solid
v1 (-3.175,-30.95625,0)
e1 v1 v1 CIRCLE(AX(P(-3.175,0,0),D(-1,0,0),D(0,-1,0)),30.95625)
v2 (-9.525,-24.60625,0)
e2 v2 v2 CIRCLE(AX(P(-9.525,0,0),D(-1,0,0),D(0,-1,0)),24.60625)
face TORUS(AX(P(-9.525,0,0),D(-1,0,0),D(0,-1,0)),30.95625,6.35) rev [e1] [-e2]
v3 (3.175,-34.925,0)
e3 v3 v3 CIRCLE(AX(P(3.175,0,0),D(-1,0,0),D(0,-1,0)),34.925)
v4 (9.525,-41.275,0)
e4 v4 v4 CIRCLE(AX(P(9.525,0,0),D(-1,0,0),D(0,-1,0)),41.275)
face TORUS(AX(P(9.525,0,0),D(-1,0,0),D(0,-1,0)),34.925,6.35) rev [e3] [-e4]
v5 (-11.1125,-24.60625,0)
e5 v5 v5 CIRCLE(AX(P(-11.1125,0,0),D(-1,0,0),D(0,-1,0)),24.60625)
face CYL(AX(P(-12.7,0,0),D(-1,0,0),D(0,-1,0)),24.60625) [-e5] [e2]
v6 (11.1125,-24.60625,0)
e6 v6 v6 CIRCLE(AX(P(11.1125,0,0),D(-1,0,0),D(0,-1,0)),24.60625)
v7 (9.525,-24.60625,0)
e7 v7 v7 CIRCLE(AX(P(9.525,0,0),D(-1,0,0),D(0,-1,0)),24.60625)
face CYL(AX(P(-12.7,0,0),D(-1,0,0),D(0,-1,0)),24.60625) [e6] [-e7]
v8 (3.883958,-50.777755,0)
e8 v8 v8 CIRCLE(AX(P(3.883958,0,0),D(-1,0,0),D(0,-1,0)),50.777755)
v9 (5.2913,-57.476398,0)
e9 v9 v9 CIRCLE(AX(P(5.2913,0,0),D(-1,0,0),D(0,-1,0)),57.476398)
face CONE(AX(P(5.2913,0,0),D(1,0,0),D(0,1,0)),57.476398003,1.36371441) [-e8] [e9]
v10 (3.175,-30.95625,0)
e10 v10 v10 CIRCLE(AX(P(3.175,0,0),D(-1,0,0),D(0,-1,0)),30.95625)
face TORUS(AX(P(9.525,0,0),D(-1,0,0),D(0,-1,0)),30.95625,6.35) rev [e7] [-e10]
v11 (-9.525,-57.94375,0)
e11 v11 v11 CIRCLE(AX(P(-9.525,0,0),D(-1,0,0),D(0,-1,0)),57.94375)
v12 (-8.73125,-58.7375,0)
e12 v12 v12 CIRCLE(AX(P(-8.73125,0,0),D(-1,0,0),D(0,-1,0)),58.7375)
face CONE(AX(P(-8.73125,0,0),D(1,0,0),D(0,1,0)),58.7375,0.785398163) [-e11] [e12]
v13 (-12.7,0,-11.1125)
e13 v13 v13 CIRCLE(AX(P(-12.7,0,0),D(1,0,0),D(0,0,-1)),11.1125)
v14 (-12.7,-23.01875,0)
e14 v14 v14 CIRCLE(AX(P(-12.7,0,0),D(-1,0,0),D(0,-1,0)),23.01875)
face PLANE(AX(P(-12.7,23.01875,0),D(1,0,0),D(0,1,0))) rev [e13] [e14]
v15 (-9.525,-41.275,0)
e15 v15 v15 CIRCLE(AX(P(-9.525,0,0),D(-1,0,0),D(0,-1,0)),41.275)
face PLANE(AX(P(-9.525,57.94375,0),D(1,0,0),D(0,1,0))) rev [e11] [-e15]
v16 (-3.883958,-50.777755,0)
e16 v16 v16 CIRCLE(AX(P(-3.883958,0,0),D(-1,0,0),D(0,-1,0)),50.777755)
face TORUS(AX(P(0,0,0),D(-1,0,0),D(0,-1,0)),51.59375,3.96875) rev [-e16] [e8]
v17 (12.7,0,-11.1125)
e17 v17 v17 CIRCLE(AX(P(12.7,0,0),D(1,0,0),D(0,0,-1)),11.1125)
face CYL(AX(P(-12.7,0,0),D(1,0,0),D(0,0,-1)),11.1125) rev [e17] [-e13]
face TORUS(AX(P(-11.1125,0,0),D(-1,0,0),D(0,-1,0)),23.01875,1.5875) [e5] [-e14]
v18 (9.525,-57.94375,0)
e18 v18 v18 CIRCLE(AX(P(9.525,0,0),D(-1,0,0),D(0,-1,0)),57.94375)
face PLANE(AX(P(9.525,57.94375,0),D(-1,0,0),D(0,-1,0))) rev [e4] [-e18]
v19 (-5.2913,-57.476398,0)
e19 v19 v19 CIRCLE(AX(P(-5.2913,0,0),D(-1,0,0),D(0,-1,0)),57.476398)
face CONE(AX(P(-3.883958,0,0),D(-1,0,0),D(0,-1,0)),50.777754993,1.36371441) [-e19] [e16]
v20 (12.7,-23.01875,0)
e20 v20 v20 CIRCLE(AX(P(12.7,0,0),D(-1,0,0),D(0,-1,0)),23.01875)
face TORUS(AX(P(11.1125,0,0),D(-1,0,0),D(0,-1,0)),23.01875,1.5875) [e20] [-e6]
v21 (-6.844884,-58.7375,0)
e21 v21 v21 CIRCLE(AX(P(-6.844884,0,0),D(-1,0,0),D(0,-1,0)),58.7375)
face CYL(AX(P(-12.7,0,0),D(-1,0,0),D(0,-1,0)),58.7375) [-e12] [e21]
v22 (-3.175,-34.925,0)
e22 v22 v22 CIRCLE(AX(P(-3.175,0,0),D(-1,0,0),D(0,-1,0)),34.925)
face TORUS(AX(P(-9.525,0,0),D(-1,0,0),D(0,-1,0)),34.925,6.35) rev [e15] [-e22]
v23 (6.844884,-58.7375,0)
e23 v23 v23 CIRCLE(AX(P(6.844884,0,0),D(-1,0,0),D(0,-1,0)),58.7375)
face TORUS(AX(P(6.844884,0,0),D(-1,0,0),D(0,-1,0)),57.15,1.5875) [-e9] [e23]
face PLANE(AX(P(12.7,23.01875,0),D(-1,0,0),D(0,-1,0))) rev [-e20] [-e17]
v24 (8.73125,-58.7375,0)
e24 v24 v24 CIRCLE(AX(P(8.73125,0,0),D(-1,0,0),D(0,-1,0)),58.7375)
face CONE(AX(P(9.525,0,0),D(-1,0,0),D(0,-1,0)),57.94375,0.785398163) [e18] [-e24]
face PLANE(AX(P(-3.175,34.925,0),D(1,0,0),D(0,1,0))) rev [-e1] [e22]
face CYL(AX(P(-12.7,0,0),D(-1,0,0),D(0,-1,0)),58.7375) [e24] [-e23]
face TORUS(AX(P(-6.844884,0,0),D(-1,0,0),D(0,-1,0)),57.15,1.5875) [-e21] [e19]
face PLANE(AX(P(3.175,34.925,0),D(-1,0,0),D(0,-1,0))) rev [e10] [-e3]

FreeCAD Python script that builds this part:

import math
import FreeCAD as App
import Part
import Sketcher

V = App.Vector
Q = App.Units.Quantity

doc = App.newDocument("Part")
body = doc.addObject("PartDesign::Body", "Body")

# Sketch on XY plane
sketch1 = body.newObject("Sketcher::SketchObject", "Sketch")
sketch1.AttachmentSupport = (doc.getObject("XY_Plane"), [""])
sketch1.MapMode = "FlatFace"
sketch1.addGeometry([
    Part.LineSegment(V(-12.7, 0, 0), V(12.7, 0, 0)),  # 0
    Part.LineSegment(V(12.7, 0, 0), V(12.7, 23, 0)),  # 1
    Part.ArcOfCircle(Part.Circle(V(11.1, 23, 0), V(0, 0, 1), 1.6), math.radians(0), math.radians(90)),  # 2
    Part.LineSegment(V(11.1, 24.6, 0), V(9.5, 24.6, 0)),  # 3
    Part.ArcOfCircle(Part.Circle(V(9.5, 31, 0), V(0, 0, 1), 6.3), math.radians(180), math.radians(270)),  # 4
    Part.LineSegment(V(3.2, 31, 0), V(3.2, 34.9, 0)),  # 5
    Part.ArcOfCircle(Part.Circle(V(9.5, 34.9, 0), V(0, 0, 1), 6.3), math.radians(90), math.radians(180)),  # 6
    Part.LineSegment(V(9.5, 41.3, 0), V(9.5, 57.9, 0)),  # 7
    Part.LineSegment(V(9.5, 57.9, 0), V(8.7, 58.7, 0)),  # 8
    Part.LineSegment(V(8.7, 58.7, 0), V(6.8, 58.7, 0)),  # 9
    Part.ArcOfCircle(Part.Circle(V(6.8, 57.2, 0), V(0, 0, 1), 1.6), math.radians(90), math.radians(168)),  # 10
    Part.LineSegment(V(5.3, 57.5, 0), V(3.9, 50.8, 0)),  # 11
    Part.ArcOfCircle(Part.Circle(V(0, 51.6, 0), V(0, 0, 1), 4), math.radians(-168), math.radians(-12)),  # 12
    Part.LineSegment(V(-3.9, 50.8, 0), V(-5.3, 57.5, 0)),  # 13
    Part.ArcOfCircle(Part.Circle(V(-6.8, 57.2, 0), V(0, 0, 1), 1.6), math.radians(12), math.radians(90)),  # 14
    Part.LineSegment(V(-6.8, 58.7, 0), V(-8.7, 58.7, 0)),  # 15
    Part.LineSegment(V(-8.7, 58.7, 0), V(-9.5, 57.9, 0)),  # 16
    Part.LineSegment(V(-9.5, 57.9, 0), V(-9.5, 41.3, 0)),  # 17
    Part.ArcOfCircle(Part.Circle(V(-9.5, 34.9, 0), V(0, 0, 1), 6.3), math.radians(0), math.radians(90)),  # 18
    Part.LineSegment(V(-3.2, 34.9, 0), V(-3.2, 31, 0)),  # 19
    Part.ArcOfCircle(Part.Circle(V(-9.5, 31, 0), V(0, 0, 1), 6.3), math.radians(-90), math.radians(0)),  # 20
    Part.LineSegment(V(-9.5, 24.6, 0), V(-11.1, 24.6, 0)),  # 21
    Part.ArcOfCircle(Part.Circle(V(-11.1, 23, 0), V(0, 0, 1), 1.6), math.radians(90), math.radians(180)),  # 22
    Part.LineSegment(V(-12.7, 23, 0), V(-12.7, 0, 0)),  # 23
], False)
sketch1.addConstraint([
    Sketcher.Constraint("Coincident", 0, 2, 1, 1),
    Sketcher.Constraint("Tangent", 1, 2, 2, 1),
    Sketcher.Constraint("Tangent", 2, 2, 3, 1),
    Sketcher.Constraint("Tangent", 3, 2, 4, 2),
    Sketcher.Constraint("Tangent", 4, 1, 5, 1),
    Sketcher.Constraint("Tangent", 5, 2, 6, 2),
    Sketcher.Constraint("Coincident", 6, 1, 7, 1),
    Sketcher.Constraint("Coincident", 7, 2, 8, 1),
    Sketcher.Constraint("Coincident", 8, 2, 9, 1),
    Sketcher.Constraint("Tangent", 9, 2, 10, 1),
    Sketcher.Constraint("Tangent", 10, 2, 11, 1),
    Sketcher.Constraint("Tangent", 11, 2, 12, 2),
    Sketcher.Constraint("Tangent", 12, 1, 13, 1),
    Sketcher.Constraint("Tangent", 13, 2, 14, 1),
    Sketcher.Constraint("Tangent", 14, 2, 15, 1),
    Sketcher.Constraint("Coincident", 15, 2, 16, 1),
    Sketcher.Constraint("Coincident", 16, 2, 17, 1),
    Sketcher.Constraint("Coincident", 17, 2, 18, 2),
    Sketcher.Constraint("Tangent", 18, 1, 19, 1),
    Sketcher.Constraint("Tangent", 19, 2, 20, 2),
    Sketcher.Constraint("Tangent", 20, 1, 21, 1),
    Sketcher.Constraint("Tangent", 21, 2, 22, 1),
    Sketcher.Constraint("Tangent", 22, 2, 23, 1),
    Sketcher.Constraint("Coincident", 23, 2, 0, 1),
    Sketcher.Constraint("Horizontal", 0),
    Sketcher.Constraint("Vertical", 1),
    Sketcher.Constraint("Horizontal", 3),
    Sketcher.Constraint("Vertical", 5),
    Sketcher.Constraint("Vertical", 7),
    Sketcher.Constraint("Horizontal", 9),
    Sketcher.Constraint("Horizontal", 15),
    Sketcher.Constraint("Vertical", 17),
    Sketcher.Constraint("Vertical", 19),
    Sketcher.Constraint("Horizontal", 21),
    Sketcher.Constraint("Vertical", 23),
    Sketcher.Constraint("Equal", 4, 6),
    Sketcher.Constraint("Equal", 2, 10),
    Sketcher.Constraint("Equal", 10, 14),
    Sketcher.Constraint("Equal", 6, 18),
    Sketcher.Constraint("Equal", 18, 20),
    Sketcher.Constraint("Equal", 14, 22),
    Sketcher.Constraint("Symmetric", 0, 2, 23, 2, -1, 1),
    Sketcher.Constraint("Symmetric", 10, 3, 14, 3, -2),
    Sketcher.Constraint("Symmetric", 6, 3, 18, 3, -2),
    Sketcher.Constraint("Symmetric", 7, 2, 16, 2, -2),
    Sketcher.Constraint("PointOnObject", 12, 3, -2),
    Sketcher.Constraint("Perpendicular", 8, 16),
    Sketcher.Constraint("Horizontal", 4, 3, 20, 3),
    Sketcher.Constraint("Vertical", 3, 2, 6, 1),
    Sketcher.Constraint("Equal", 9, 15),
    Sketcher.Constraint("DistanceX", 0, 1, 0, 2, Q("1 in")),
    Sketcher.Constraint("Radius", 4, Q("0.25 in")),
    Sketcher.Constraint("Radius", 2, Q("0.0625 in")),
    Sketcher.Constraint("Radius", 12, Q("0.15625 in")),
    Sketcher.Constraint("DistanceX", 18, 3, 5, 2, Q("0.5 in")),
    Sketcher.Constraint("DistanceY", 1, 1, 1, 2, Q("0.90625 in")),
    Sketcher.Constraint("DistanceY", 5, 1, 5, 2, Q("0.15625 in")),
    Sketcher.Constraint("DistanceY", 7, 1, 7, 2, Q("0.65625 in")),
    Sketcher.Constraint("DistanceY", -1, 1, 10, 3, Q("2.25 in")),
    Sketcher.Constraint("DistanceY", 12, 3, 7, 2, Q("0.25 in")),
    Sketcher.Constraint("DistanceX", -1, 1, 10, 2, 5.2913),
])
revolution = body.newObject("PartDesign::Revolution", "Revolution")
revolution.Profile = sketch1
revolution.ReferenceAxis = (sketch1, ["H_Axis"])
revolution.Angle = 360

# Sketch on YZ plane
sketch2 = body.newObject("Sketcher::SketchObject", "Sketch001")
sketch2.AttachmentSupport = (doc.getObject("YZ_Plane"), [""])
sketch2.MapMode = "FlatFace"
sketch2.AttachmentOffset = App.Placement(V(0, 0, 0.5 * 25.4), App.Rotation())
sketch2.addGeometry(Part.Circle(V(0, 0, 0), V(0, 0, 1), 11), False)
sketch2.addConstraint([
    Sketcher.Constraint("Coincident", 0, 3, -1, 1),
    Sketcher.Constraint("Diameter", 0, Q("0.875 in")),
])
pocket1 = body.newObject("PartDesign::Pocket", "Pocket")
pocket1.Profile = sketch2
pocket1.Type = "ThroughAll"

doc.recompute()
